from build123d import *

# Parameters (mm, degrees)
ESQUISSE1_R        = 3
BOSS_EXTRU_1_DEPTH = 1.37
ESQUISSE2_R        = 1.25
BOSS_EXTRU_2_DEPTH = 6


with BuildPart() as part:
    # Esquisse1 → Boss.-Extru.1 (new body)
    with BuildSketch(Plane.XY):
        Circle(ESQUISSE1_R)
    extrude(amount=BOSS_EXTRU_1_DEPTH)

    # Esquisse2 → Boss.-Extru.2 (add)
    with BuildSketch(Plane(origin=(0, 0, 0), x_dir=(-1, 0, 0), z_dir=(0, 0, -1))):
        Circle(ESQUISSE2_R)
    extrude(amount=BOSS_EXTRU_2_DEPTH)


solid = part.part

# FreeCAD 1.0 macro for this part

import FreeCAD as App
import Part
import Sketcher

V = App.Vector
Q = App.Units.Quantity

doc = App.newDocument("Part")
body = doc.addObject("PartDesign::Body", "Body")

# Sketch on XY plane
sketch1 = doc.addObject("Sketcher::SketchObject", "Sketch")
body.addObject(sketch1)
sketch1.AttachmentSupport = (doc.XY_Plane, [""])
sketch1.MapMode = "FlatFace"
sketch1.addGeometry(Part.Circle(V(0, 0, 0), V(0, 0, 1), 3), False)
sketch1.addConstraint(Sketcher.Constraint("Coincident", 0, 3, -1, 1))
sketch1.addConstraint(Sketcher.Constraint("Diameter", 0, Q("6 mm")))
pad1 = doc.addObject("PartDesign::Pad", "Pad")
body.addObject(pad1)
pad1.Profile = sketch1
pad1.Length = 1.37

# Sketch on XY plane
sketch2 = doc.addObject("Sketcher::SketchObject", "Sketch001")
body.addObject(sketch2)
sketch2.AttachmentSupport = (doc.XY_Plane, [""])
sketch2.MapMode = "FlatFace"
sketch2.addGeometry(Part.Circle(V(0, 0, 0), V(0, 0, 1), 1.25), False)
sketch2.addConstraint(Sketcher.Constraint("Coincident", 0, 3, -1, 1))
sketch2.addConstraint(Sketcher.Constraint("Diameter", 0, Q("2.5 mm")))
pad2 = doc.addObject("PartDesign::Pad", "Pad001")
body.addObject(pad2)
pad2.Profile = sketch2
pad2.Length = 6
pad2.Reversed = True

doc.recompute()
